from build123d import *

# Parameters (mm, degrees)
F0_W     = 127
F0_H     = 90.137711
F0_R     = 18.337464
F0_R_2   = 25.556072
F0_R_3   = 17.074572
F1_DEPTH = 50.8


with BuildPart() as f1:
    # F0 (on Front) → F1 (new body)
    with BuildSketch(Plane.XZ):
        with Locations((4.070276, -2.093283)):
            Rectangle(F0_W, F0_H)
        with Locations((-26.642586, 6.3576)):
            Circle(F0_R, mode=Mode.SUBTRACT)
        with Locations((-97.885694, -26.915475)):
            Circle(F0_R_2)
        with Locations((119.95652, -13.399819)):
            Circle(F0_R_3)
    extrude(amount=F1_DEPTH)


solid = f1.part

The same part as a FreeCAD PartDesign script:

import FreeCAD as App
import Part
import Sketcher
from FreeCAD import Vector
Q = App.Units.Quantity

doc = App.newDocument("Part")
params = doc.addObject("Spreadsheet::Sheet", "Params")
for row, (alias, value) in enumerate([
    ("sketch1_width", "5 in"),
    ("pad1_length", "2 in"),
], start=1):
    params.set(f"A{row}", alias)
    params.set(f"B{row}", "=" + value)
    params.setAlias(f"B{row}", alias)

body = doc.addObject("PartDesign::Body", "Body")
body.AllowCompound = True

# Sketch on XZ plane
sketch1 = body.newObject("Sketcher::SketchObject", "Sketch")
sketch1.AttachmentSupport = (doc.getObject("XZ_Plane"), [""])
sketch1.MapMode = "FlatFace"
sketch1.addGeometry([
    Part.LineSegment(Vector(-59, 43, 0), Vector(-59, -47, 0)),  # 0
    Part.LineSegment(Vector(-59, -47, 0), Vector(68, -47, 0)),  # 1
    Part.LineSegment(Vector(68, -47, 0), Vector(68, 43, 0)),  # 2
    Part.LineSegment(Vector(68, 43, 0), Vector(-59, 43, 0)),  # 3
    Part.Circle(Vector(-27, 6, 0), Vector(0, 0, 1), 18),  # 4
    Part.Circle(Vector(-98, -27, 0), Vector(0, 0, 1), 26),  # 5
    Part.Circle(Vector(120, -13, 0), Vector(0, 0, 1), 17),  # 6
], False)
sketch1.addConstraint([
    Sketcher.Constraint("Coincident", 0, 2, 1, 1),
    Sketcher.Constraint("Coincident", 1, 2, 2, 1),
    Sketcher.Constraint("Coincident", 2, 2, 3, 1),
    Sketcher.Constraint("Coincident", 3, 2, 0, 1),
    Sketcher.Constraint("Vertical", 0),
    Sketcher.Constraint("Horizontal", 1),
    Sketcher.Constraint("Vertical", 2),
    Sketcher.Constraint("Horizontal", 3),
    Sketcher.Constraint("DistanceX", 1, 1, 1, 2, Q("5 in")),
    Sketcher.Constraint("Diameter", 4, Q("36.674928 mm")),
    Sketcher.Constraint("Diameter", 5, Q("51.112144 mm")),
    Sketcher.Constraint("Diameter", 6, Q("34.149144 mm")),
    Sketcher.Constraint("DistanceY", 0, 2, 0, 1, Q("90.137711 mm")),
    Sketcher.Constraint("DistanceY", -1, 1, 4, 3, Q("6.3576 mm")),
    Sketcher.Constraint("DistanceX", -1, 1, 6, 3, Q("119.95652 mm")),
    Sketcher.Constraint("DistanceY", 6, 3, -1, 1, Q("13.399819 mm")),
    Sketcher.Constraint("DistanceY", 0, 2, -1, 1, Q("47.162138 mm")),
    Sketcher.Constraint("DistanceX", 5, 3, 4, 3, Q("71.243108 mm")),
    Sketcher.Constraint("DistanceX", 5, 3, 0, 2, Q("38.45597 mm")),
    Sketcher.Constraint("DistanceX", 4, 3, -1, 1, Q("26.642586 mm")),
    Sketcher.Constraint("DistanceY", 5, 3, -1, 1, Q("26.915475 mm")),
])
sketch1.setExpression("Constraints[8]", "Params.sketch1_width")
pad1 = body.newObject("PartDesign::Pad", "Pad")
pad1.Profile = sketch1
pad1.setExpression("Length", "Params.pad1_length")

doc.recompute()
